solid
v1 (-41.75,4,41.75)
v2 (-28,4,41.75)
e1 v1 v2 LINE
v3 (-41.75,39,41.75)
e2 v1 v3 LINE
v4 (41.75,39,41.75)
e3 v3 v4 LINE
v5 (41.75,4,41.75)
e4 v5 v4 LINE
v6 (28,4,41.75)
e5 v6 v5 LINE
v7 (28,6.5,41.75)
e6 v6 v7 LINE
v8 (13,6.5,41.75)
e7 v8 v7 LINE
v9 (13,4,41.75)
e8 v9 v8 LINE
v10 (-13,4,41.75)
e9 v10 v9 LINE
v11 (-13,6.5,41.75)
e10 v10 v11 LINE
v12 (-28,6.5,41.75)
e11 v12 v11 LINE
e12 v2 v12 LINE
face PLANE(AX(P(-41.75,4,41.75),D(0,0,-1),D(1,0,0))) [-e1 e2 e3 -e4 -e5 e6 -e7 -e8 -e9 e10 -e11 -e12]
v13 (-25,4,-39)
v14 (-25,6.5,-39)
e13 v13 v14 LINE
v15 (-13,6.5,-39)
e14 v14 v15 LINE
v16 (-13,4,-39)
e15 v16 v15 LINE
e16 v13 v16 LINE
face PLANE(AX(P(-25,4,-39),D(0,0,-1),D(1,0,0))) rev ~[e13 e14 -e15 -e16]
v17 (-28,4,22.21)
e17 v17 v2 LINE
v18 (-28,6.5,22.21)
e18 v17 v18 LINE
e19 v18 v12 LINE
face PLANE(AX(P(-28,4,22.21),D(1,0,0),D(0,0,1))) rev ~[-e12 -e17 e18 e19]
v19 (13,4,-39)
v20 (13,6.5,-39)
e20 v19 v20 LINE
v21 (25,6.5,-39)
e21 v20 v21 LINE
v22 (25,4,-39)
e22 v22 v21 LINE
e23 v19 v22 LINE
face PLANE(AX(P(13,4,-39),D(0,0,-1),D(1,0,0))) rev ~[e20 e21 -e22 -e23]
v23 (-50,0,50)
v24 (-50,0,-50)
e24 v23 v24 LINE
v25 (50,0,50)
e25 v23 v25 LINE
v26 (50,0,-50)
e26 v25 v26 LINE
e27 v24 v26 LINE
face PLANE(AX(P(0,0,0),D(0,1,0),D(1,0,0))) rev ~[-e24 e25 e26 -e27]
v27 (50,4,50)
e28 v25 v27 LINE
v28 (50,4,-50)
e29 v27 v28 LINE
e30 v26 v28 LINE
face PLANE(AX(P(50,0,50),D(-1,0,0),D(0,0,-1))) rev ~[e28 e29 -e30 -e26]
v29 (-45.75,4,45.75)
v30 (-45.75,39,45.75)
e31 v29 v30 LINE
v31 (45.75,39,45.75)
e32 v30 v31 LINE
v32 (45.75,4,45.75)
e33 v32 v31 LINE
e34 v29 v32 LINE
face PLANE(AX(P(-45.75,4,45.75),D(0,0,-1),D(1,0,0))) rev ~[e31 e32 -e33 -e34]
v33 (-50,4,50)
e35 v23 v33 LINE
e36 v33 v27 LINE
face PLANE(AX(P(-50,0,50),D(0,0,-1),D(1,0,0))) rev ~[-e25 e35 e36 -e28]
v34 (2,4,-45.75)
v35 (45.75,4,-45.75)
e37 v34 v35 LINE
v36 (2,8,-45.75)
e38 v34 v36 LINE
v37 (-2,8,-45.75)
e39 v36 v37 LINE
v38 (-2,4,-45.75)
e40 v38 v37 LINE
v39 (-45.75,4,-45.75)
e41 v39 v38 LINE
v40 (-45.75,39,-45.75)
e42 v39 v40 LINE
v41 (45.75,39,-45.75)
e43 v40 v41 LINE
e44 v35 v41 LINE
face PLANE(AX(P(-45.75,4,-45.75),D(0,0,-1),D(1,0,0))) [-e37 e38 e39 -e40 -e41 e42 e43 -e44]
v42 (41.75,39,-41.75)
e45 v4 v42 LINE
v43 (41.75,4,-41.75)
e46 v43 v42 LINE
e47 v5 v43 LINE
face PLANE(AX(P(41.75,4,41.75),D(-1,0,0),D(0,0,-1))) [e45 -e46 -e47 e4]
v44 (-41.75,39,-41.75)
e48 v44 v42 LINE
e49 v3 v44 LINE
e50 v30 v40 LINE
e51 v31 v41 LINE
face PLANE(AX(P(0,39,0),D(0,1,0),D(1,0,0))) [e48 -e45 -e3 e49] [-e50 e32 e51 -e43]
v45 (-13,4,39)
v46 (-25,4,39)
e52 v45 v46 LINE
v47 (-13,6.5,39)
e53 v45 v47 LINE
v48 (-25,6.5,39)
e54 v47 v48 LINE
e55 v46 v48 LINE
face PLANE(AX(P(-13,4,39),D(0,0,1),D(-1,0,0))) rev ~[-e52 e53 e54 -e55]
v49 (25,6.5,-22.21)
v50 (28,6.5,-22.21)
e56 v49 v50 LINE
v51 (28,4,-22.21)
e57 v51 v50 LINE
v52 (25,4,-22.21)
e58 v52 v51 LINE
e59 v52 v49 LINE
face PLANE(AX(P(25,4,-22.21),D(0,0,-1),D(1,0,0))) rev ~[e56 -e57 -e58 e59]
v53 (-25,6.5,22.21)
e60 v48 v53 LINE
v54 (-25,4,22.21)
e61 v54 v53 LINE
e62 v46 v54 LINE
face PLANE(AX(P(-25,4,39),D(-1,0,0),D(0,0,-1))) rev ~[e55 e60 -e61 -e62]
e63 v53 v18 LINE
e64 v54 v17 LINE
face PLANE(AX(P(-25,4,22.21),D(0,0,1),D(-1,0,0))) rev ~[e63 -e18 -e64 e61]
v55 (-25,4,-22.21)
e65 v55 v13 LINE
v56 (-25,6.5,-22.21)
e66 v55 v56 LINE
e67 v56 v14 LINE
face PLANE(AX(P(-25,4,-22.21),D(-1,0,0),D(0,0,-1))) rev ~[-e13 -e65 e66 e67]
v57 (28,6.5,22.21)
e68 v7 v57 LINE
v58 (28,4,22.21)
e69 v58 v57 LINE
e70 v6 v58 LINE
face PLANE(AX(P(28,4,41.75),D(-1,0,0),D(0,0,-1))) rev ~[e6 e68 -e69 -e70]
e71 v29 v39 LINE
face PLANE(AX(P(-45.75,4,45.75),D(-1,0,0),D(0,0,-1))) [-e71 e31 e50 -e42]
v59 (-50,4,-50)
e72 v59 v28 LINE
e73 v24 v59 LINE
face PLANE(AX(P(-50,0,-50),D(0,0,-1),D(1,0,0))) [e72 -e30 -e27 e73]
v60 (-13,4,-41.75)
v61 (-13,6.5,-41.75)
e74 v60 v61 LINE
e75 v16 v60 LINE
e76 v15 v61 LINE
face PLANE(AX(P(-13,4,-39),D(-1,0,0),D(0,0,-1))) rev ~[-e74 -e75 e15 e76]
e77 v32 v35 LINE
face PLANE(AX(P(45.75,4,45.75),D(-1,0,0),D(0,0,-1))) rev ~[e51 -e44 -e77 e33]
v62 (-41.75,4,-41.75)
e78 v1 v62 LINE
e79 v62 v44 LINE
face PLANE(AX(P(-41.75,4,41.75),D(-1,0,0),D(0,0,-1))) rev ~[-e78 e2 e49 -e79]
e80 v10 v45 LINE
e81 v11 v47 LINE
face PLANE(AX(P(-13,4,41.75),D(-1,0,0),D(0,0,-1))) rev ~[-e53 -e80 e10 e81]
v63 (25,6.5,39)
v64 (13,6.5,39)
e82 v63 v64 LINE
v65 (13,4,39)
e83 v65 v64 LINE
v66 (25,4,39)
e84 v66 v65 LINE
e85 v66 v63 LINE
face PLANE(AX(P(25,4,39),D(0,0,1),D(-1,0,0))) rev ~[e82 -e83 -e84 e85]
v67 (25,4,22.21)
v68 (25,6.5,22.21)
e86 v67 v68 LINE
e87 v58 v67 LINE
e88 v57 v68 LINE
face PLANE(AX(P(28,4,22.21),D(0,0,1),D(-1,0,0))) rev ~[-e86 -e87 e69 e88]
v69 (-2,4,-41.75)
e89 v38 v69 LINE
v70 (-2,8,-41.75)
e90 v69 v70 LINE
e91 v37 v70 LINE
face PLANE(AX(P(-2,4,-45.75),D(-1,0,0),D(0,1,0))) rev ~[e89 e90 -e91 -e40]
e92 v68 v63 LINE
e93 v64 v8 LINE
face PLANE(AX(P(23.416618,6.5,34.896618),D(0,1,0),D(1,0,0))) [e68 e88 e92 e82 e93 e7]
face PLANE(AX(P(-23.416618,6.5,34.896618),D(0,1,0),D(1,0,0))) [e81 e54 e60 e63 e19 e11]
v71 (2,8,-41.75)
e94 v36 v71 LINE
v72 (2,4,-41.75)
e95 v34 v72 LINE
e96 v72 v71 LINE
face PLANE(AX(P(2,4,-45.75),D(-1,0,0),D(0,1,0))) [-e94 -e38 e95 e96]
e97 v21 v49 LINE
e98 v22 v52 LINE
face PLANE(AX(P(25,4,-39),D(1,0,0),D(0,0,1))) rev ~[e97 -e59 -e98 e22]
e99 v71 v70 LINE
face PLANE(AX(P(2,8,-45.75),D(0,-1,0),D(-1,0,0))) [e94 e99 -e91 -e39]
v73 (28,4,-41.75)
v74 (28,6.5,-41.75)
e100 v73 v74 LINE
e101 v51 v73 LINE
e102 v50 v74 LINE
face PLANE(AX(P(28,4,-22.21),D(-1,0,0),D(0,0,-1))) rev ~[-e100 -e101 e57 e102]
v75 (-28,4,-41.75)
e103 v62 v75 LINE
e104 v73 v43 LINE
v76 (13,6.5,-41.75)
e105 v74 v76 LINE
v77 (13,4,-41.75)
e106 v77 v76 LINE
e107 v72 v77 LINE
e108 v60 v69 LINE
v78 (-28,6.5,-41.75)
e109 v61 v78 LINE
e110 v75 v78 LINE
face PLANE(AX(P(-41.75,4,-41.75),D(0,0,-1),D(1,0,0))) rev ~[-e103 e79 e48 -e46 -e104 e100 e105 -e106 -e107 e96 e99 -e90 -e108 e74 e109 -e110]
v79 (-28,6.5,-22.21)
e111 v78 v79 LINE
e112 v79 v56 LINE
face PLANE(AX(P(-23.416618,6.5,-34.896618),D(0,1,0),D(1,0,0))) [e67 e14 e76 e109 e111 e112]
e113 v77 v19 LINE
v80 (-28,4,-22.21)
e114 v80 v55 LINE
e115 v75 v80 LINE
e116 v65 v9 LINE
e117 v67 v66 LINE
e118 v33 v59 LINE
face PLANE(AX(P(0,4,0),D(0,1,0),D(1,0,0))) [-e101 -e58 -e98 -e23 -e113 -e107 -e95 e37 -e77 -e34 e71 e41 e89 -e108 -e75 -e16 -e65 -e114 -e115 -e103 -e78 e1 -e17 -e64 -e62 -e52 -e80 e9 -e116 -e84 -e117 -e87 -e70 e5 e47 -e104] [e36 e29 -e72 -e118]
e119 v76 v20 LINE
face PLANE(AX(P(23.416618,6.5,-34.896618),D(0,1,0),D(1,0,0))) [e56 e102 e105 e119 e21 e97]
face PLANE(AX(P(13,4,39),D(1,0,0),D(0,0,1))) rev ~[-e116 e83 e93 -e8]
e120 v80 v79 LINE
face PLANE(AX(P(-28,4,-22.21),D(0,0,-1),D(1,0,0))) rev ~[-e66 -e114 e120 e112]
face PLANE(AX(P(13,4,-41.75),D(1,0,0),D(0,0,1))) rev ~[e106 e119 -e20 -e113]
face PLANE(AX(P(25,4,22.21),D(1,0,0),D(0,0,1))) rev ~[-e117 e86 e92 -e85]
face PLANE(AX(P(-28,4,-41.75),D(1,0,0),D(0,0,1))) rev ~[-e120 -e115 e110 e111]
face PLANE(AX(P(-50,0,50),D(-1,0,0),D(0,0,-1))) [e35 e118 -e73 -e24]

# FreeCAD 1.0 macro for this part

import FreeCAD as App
import Part
import Sketcher

doc = App.newDocument("Part")
body = doc.addObject("PartDesign::Body", "Body")

# Sketch on XZ plane
sketch1 = body.newObject("Sketcher::SketchObject", "Sketch")
sketch1.AttachmentSupport = (doc.getObject("XZ_Plane"), [""])
sketch1.MapMode = "FlatFace"
sketch1.addGeometry([
    Part.LineSegment(App.Vector(-50, -50, 0), App.Vector(-50, 50, 0)),
    Part.LineSegment(App.Vector(-50, 50, 0), App.Vector(50, 50, 0)),
    Part.LineSegment(App.Vector(50, 50, 0), App.Vector(50, -50, 0)),
    Part.LineSegment(App.Vector(50, -50, 0), App.Vector(-50, -50, 0)),
], False)
sketch1.addConstraint([
    Sketcher.Constraint("Coincident", 0, 2, 1, 1),
    Sketcher.Constraint("Coincident", 1, 2, 2, 1),
    Sketcher.Constraint("Coincident", 2, 2, 3, 1),
    Sketcher.Constraint("Coincident", 3, 2, 0, 1),
    Sketcher.Constraint("Vertical", 0),
    Sketcher.Constraint("Horizontal", 1),
    Sketcher.Constraint("Vertical", 2),
    Sketcher.Constraint("Horizontal", 3),
    Sketcher.Constraint("Symmetric", 0, 2, 2, 2, -1, 1),
    Sketcher.Constraint("Equal", 3, 0),
    Sketcher.Constraint("DistanceX", 1, 1, 1, 2, 100.0),
])
pad1 = body.newObject("PartDesign::Pad", "Pad")
pad1.Profile = sketch1
pad1.Length = 4
pad1.Reversed = True

# Sketch on XZ plane
sketch2 = body.newObject("Sketcher::SketchObject", "Sketch001")
sketch2.AttachmentSupport = (doc.getObject("XZ_Plane"), [""])
sketch2.MapMode = "FlatFace"
sketch2.AttachmentOffset = App.Placement(App.Vector(0, 0, -4), App.Rotation())
sketch2.addGeometry([
    Part.LineSegment(App.Vector(-46, -46, 0), App.Vector(-46, 46, 0)),  # 0
    Part.LineSegment(App.Vector(-46, 46, 0), App.Vector(46, 46, 0)),  # 1
    Part.LineSegment(App.Vector(46, 46, 0), App.Vector(46, -46, 0)),  # 2
    Part.LineSegment(App.Vector(46, -46, 0), App.Vector(-46, -46, 0)),  # 3
    Part.LineSegment(App.Vector(42, 42, 0), App.Vector(-42, 42, 0)),  # 4
    Part.LineSegment(App.Vector(-42, 42, 0), App.Vector(-42, -42, 0)),  # 5
    Part.LineSegment(App.Vector(-42, -42, 0), App.Vector(42, -42, 0)),  # 6
    Part.LineSegment(App.Vector(42, -42, 0), App.Vector(42, 42, 0)),  # 7
], False)
sketch2.addConstraint([
    Sketcher.Constraint("Coincident", 0, 2, 1, 1),
    Sketcher.Constraint("Coincident", 1, 2, 2, 1),
    Sketcher.Constraint("Coincident", 2, 2, 3, 1),
    Sketcher.Constraint("Coincident", 3, 2, 0, 1),
    Sketcher.Constraint("Coincident", 4, 2, 5, 1),
    Sketcher.Constraint("Coincident", 5, 2, 6, 1),
    Sketcher.Constraint("Coincident", 6, 2, 7, 1),
    Sketcher.Constraint("Coincident", 7, 2, 4, 1),
    Sketcher.Constraint("Vertical", 0),
    Sketcher.Constraint("Horizontal", 1),
    Sketcher.Constraint("Vertical", 2),
    Sketcher.Constraint("Horizontal", 3),
    Sketcher.Constraint("Horizontal", 4),
    Sketcher.Constraint("Vertical", 5),
    Sketcher.Constraint("Horizontal", 6),
    Sketcher.Constraint("Vertical", 7),
    Sketcher.Constraint("Symmetric", 0, 2, 2, 2, -1, 1),
    Sketcher.Constraint("Symmetric", 4, 2, 6, 2, -1, 1),
    Sketcher.Constraint("Equal", 3, 0),
    Sketcher.Constraint("Equal", 6, 5),
    Sketcher.Constraint("DistanceX", 1, 1, 1, 2, 91.5),
    Sketcher.Constraint("DistanceX", 4, 2, 4, 1, 83.5),
])
pad2 = body.newObject("PartDesign::Pad", "Pad001")
pad2.Profile = sketch2
pad2.Length = 35
pad2.Reversed = True

# Sketch on XY plane
sketch3 = body.newObject("Sketcher::SketchObject", "Sketch002")
sketch3.AttachmentSupport = (doc.getObject("XY_Plane"), [""])
sketch3.MapMode = "FlatFace"
sketch3.AttachmentOffset = App.Placement(App.Vector(0, 0, -45.75), App.Rotation())
sketch3.addGeometry([
    Part.LineSegment(App.Vector(2, 8, 0), App.Vector(2, 4, 0)),
    Part.LineSegment(App.Vector(2, 4, 0), App.Vector(-2, 4, 0)),
    Part.LineSegment(App.Vector(-2, 4, 0), App.Vector(-2, 8, 0)),
    Part.LineSegment(App.Vector(-2, 8, 0), App.Vector(2, 8, 0)),
], False)
sketch3.addConstraint([
    Sketcher.Constraint("Coincident", 0, 2, 1, 1),
    Sketcher.Constraint("Coincident", 1, 2, 2, 1),
    Sketcher.Constraint("Coincident", 2, 2, 3, 1),
    Sketcher.Constraint("Coincident", 3, 2, 0, 1),
    Sketcher.Constraint("Vertical", 0),
    Sketcher.Constraint("Horizontal", 1),
    Sketcher.Constraint("Vertical", 2),
    Sketcher.Constraint("Horizontal", 3),
    Sketcher.Constraint("Equal", 3, 0),
    Sketcher.Constraint("DistanceX", 1, 2, 1, 1, 4.0),
    Sketcher.Constraint("DistanceX", -1, 1, 0, 2, 2.0),
    Sketcher.Constraint("DistanceY", -1, 1, 0, 2, 4.0),
])
pocket1 = body.newObject("PartDesign::Pocket", "Pocket")
pocket1.Profile = sketch3
pocket1.Length = 4
pocket1.Reversed = True

# Sketch on XZ plane
sketch4 = body.newObject("Sketcher::SketchObject", "Sketch003")
sketch4.AttachmentSupport = (doc.getObject("XZ_Plane"), [""])
sketch4.MapMode = "FlatFace"
sketch4.AttachmentOffset = App.Placement(App.Vector(0, 0, -4), App.Rotation())
sketch4.addGeometry([
    Part.LineSegment(App.Vector(-28, -22.2, 0), App.Vector(-25, -22.2, 0)),  # 0
    Part.LineSegment(App.Vector(-25, -22.2, 0), App.Vector(-25, -39, 0)),  # 1
    Part.LineSegment(App.Vector(-25, -39, 0), App.Vector(-13, -39, 0)),  # 2
    Part.LineSegment(App.Vector(-13, -39, 0), App.Vector(-13, -41.8, 0)),  # 3
    Part.LineSegment(App.Vector(-13, -41.8, 0), App.Vector(-28, -41.8, 0)),  # 4
    Part.LineSegment(App.Vector(-28, -41.8, 0), App.Vector(-28, -22.2, 0)),  # 5
    Part.LineSegment(App.Vector(25, -39, 0), App.Vector(25, -22.2, 0)),  # 6
    Part.LineSegment(App.Vector(25, -22.2, 0), App.Vector(28, -22.2, 0)),  # 7
    Part.LineSegment(App.Vector(28, -22.2, 0), App.Vector(28, -41.8, 0)),  # 8
    Part.LineSegment(App.Vector(28, -41.8, 0), App.Vector(13, -41.8, 0)),  # 9
    Part.LineSegment(App.Vector(13, -41.8, 0), App.Vector(13, -39, 0)),  # 10
    Part.LineSegment(App.Vector(13, -39, 0), App.Vector(25, -39, 0)),  # 11
    Part.LineSegment(App.Vector(25, 39, 0), App.Vector(13, 39, 0)),  # 12
    Part.LineSegment(App.Vector(13, 39, 0), App.Vector(13, 41.8, 0)),  # 13
    Part.LineSegment(App.Vector(13, 41.8, 0), App.Vector(28, 41.8, 0)),  # 14
    Part.LineSegment(App.Vector(28, 41.8, 0), App.Vector(28, 22.2, 0)),  # 15
    Part.LineSegment(App.Vector(28, 22.2, 0), App.Vector(25, 22.2, 0)),  # 16
    Part.LineSegment(App.Vector(25, 22.2, 0), App.Vector(25, 39, 0)),  # 17
    Part.LineSegment(App.Vector(-13, 39, 0), App.Vector(-25, 39, 0)),  # 18
    Part.LineSegment(App.Vector(-25, 39, 0), App.Vector(-25, 22.2, 0)),  # 19
    Part.LineSegment(App.Vector(-25, 22.2, 0), App.Vector(-28, 22.2, 0)),  # 20
    Part.LineSegment(App.Vector(-28, 22.2, 0), App.Vector(-28, 41.8, 0)),  # 21
    Part.LineSegment(App.Vector(-28, 41.8, 0), App.Vector(-13, 41.8, 0)),  # 22
    Part.LineSegment(App.Vector(-13, 41.8, 0), App.Vector(-13, 39, 0)),  # 23
], False)
sketch4.addConstraint([
    Sketcher.Constraint("Coincident", 0, 2, 1, 1),
    Sketcher.Constraint("Coincident", 1, 2, 2, 1),
    Sketcher.Constraint("Coincident", 2, 2, 3, 1),
    Sketcher.Constraint("Coincident", 3, 2, 4, 1),
    Sketcher.Constraint("Coincident", 4, 2, 5, 1),
    Sketcher.Constraint("Coincident", 5, 2, 0, 1),
    Sketcher.Constraint("Coincident", 6, 2, 7, 1),
    Sketcher.Constraint("Coincident", 7, 2, 8, 1),
    Sketcher.Constraint("Coincident", 8, 2, 9, 1),
    Sketcher.Constraint("Coincident", 9, 2, 10, 1),
    Sketcher.Constraint("Coincident", 10, 2, 11, 1),
    Sketcher.Constraint("Coincident", 11, 2, 6, 1),
    Sketcher.Constraint("Coincident", 12, 2, 13, 1),
    Sketcher.Constraint("Coincident", 13, 2, 14, 1),
    Sketcher.Constraint("Coincident", 14, 2, 15, 1),
    Sketcher.Constraint("Coincident", 15, 2, 16, 1),
    Sketcher.Constraint("Coincident", 16, 2, 17, 1),
    Sketcher.Constraint("Coincident", 17, 2, 12, 1),
    Sketcher.Constraint("Coincident", 18, 2, 19, 1),
    Sketcher.Constraint("Coincident", 19, 2, 20, 1),
    Sketcher.Constraint("Coincident", 20, 2, 21, 1),
    Sketcher.Constraint("Coincident", 21, 2, 22, 1),
    Sketcher.Constraint("Coincident", 22, 2, 23, 1),
    Sketcher.Constraint("Coincident", 23, 2, 18, 1),
    Sketcher.Constraint("Horizontal", 0),
    Sketcher.Constraint("Vertical", 1),
    Sketcher.Constraint("Horizontal", 2),
    Sketcher.Constraint("Vertical", 3),
    Sketcher.Constraint("Horizontal", 4),
    Sketcher.Constraint("Vertical", 5),
    Sketcher.Constraint("Vertical", 6),
    Sketcher.Constraint("Horizontal", 7),
    Sketcher.Constraint("Vertical", 8),
    Sketcher.Constraint("Horizontal", 9),
    Sketcher.Constraint("Vertical", 10),
    Sketcher.Constraint("Horizontal", 11),
    Sketcher.Constraint("Horizontal", 12),
    Sketcher.Constraint("Vertical", 13),
    Sketcher.Constraint("Horizontal", 14),
    Sketcher.Constraint("Vertical", 15),
    Sketcher.Constraint("Horizontal", 16),
    Sketcher.Constraint("Vertical", 17),
    Sketcher.Constraint("Horizontal", 18),
    Sketcher.Constraint("Vertical", 19),
    Sketcher.Constraint("Horizontal", 20),
    Sketcher.Constraint("Vertical", 21),
    Sketcher.Constraint("Horizontal", 22),
    Sketcher.Constraint("Vertical", 23),
    Sketcher.Constraint("Symmetric", 2, 2, 12, 2, -1, 1),
    Sketcher.Constraint("Symmetric", 4, 2, 14, 2, -1, 1),
    Sketcher.Constraint("Symmetric", 0, 2, 16, 2, -1, 1),
    Sketcher.Constraint("Symmetric", 11, 2, 18, 2, -1, 1),
    Sketcher.Constraint("Symmetric", 7, 2, 20, 2, -1, 1),
    Sketcher.Constraint("Symmetric", 9, 2, 22, 2, -1, 1),
    Sketcher.Constraint("Symmetric", 0, 2, 6, 2, -2),
    Sketcher.Constraint("Symmetric", 4, 2, 8, 2, -2),
    Sketcher.Constraint("Symmetric", 2, 2, 10, 2, -2),
    Sketcher.Constraint("DistanceX", 0, 1, 0, 2, 3.0),
    Sketcher.Constraint("DistanceX", 2, 1, 2, 2, 12.0),
    Sketcher.Constraint("DistanceX", 0, 2, -1, 1, 25.0),
    Sketcher.Constraint("DistanceY", 1, 2, -1, 1, 39.0),
    Sketcher.Constraint("DistanceY", 1, 2, 1, 1, 16.79),
    Sketcher.Constraint("DistanceY", 3, 2, 3, 1, 2.75),
])
pad3 = body.newObject("PartDesign::Pad", "Pad002")
pad3.Profile = sketch4
pad3.Length = 2.5
pad3.Reversed = True

doc.recompute()
